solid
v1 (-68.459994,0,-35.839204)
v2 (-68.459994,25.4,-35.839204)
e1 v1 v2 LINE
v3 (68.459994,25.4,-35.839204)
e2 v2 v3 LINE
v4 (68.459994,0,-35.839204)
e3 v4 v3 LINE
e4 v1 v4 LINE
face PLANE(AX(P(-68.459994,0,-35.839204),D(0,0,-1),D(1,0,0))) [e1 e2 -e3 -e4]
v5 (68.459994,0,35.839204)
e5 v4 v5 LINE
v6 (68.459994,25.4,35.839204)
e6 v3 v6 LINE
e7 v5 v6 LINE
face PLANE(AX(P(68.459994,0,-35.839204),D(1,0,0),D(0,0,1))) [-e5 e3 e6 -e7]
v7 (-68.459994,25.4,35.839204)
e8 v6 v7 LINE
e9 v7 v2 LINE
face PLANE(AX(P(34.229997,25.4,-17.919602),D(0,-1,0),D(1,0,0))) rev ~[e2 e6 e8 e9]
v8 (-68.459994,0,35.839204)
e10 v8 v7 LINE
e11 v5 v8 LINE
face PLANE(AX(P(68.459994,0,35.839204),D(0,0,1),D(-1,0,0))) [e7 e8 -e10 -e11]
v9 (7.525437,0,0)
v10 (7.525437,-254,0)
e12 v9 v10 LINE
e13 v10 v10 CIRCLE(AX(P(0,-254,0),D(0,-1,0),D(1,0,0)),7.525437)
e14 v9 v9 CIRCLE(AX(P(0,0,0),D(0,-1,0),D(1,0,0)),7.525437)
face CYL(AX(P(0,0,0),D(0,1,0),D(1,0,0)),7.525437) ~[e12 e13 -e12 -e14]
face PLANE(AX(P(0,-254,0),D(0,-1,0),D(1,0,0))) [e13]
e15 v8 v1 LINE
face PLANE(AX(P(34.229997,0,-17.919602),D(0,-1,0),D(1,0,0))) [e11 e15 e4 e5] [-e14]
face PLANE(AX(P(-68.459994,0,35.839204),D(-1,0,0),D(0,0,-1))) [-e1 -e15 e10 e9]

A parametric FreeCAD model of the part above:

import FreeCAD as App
import Part
import Sketcher

V = App.Vector
Q = App.Units.Quantity


def add_polygon(sketch, points):
    """Adds a closed chain of lines whose ends are joined by coincident constraints."""
    first, n = sketch.GeometryCount, len(points)
    for a, b in zip(points, points[1:] + points[:1]):
        sketch.addGeometry(Part.LineSegment(App.Vector(*a, 0), App.Vector(*b, 0)), False)
    for i in range(n):
        sketch.addConstraint(Sketcher.Constraint("Coincident", first + i, 2, first + (i + 1) % n, 1))

doc = App.newDocument("Part")
body = doc.addObject("PartDesign::Body", "Body")

# Sketch on XZ plane
sketch1 = body.newObject("Sketcher::SketchObject", "Sketch")
sketch1.AttachmentSupport = (doc.getObject("XZ_Plane"), [""])
sketch1.MapMode = "FlatFace"
sketch1.addGeometry(Part.Circle(V(0, 0, 0), V(0, 0, 1), 8), False)
sketch1.addConstraint(Sketcher.Constraint("Coincident", 0, 3, -1, 1))
sketch1.addConstraint(Sketcher.Constraint("Diameter", 0, 15.050874))
pad1 = body.newObject("PartDesign::Pad", "Pad")
pad1.Profile = sketch1
pad1.Length = Q("10 in")

# Sketch on XZ plane
sketch2 = body.newObject("Sketcher::SketchObject", "Sketch001")
sketch2.AttachmentSupport = (doc.getObject("XZ_Plane"), [""])
sketch2.MapMode = "FlatFace"
add_polygon(sketch2, [(-68, -36), (68, -36), (68, 36), (-68, 36)])  # lines 0-3
sketch2.addConstraint(Sketcher.Constraint("Horizontal", 0))
sketch2.addConstraint(Sketcher.Constraint("Vertical", 1))
sketch2.addConstraint(Sketcher.Constraint("Horizontal", 2))
sketch2.addConstraint(Sketcher.Constraint("Vertical", 3))
sketch2.addConstraint(Sketcher.Constraint("Symmetric", 0, 2, 2, 2, -1, 1))
sketch2.addConstraint(Sketcher.Constraint("DistanceX", 0, 1, 0, 2, 136.919989))
sketch2.addConstraint(Sketcher.Constraint("DistanceY", 1, 1, 1, 2, 71.678408))
pad2 = body.newObject("PartDesign::Pad", "Pad001")
pad2.Profile = sketch2
pad2.Length = Q("1 in")
pad2.Reversed = True

doc.recompute()
